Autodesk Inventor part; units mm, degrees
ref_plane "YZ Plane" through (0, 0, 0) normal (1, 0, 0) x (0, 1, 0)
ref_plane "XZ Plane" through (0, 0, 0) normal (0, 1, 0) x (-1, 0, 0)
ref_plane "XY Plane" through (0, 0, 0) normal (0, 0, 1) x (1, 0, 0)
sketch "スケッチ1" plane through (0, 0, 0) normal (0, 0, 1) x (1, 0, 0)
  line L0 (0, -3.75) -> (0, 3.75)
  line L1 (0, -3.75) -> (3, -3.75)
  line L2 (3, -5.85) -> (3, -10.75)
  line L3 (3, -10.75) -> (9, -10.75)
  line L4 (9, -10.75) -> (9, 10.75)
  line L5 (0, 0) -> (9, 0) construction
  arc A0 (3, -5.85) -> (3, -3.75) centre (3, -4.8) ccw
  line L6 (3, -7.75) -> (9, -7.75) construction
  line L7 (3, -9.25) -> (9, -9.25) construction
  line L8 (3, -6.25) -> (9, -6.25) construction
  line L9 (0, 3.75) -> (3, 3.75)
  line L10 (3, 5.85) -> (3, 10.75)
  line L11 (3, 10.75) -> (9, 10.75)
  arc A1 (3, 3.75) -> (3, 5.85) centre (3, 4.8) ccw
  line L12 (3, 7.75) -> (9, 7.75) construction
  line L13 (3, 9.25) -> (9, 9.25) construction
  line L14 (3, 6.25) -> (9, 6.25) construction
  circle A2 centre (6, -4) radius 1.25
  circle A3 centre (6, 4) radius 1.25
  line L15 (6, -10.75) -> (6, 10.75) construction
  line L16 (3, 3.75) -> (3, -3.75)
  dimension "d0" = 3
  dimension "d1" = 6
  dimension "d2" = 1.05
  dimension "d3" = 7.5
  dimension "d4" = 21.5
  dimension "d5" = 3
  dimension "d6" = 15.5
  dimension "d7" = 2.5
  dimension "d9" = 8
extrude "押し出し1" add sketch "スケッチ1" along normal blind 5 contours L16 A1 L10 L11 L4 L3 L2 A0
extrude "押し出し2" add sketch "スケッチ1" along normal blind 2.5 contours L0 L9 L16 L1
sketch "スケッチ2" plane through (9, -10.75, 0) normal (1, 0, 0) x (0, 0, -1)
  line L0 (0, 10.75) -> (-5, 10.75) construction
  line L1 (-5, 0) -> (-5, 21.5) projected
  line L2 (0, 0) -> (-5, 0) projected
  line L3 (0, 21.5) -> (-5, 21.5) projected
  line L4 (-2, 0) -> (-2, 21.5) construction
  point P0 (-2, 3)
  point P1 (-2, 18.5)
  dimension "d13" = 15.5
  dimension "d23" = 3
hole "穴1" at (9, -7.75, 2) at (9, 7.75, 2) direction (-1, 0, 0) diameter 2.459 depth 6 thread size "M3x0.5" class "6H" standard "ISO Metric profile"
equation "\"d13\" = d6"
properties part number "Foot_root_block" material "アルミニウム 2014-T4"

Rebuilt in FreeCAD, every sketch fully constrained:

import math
import FreeCAD as App
import Part
import Sketcher
from FreeCAD import Vector

doc = App.newDocument("Part")
params = doc.addObject("Spreadsheet::Sheet", "Params")
for row, (alias, value) in enumerate([
    ("sketch1_diameter", "2.5 mm"),
    ("sketch1_width", "6 mm"),
    ("sketch1_radius", "1.05 mm"),
    ("sketch1_height", "7.5 mm"),
    ("sketch1_height2", "21.5 mm"),
    ("pad1_length", "5 mm"),
    ("sketch2_width", "3 mm"),
    ("sketch2_height", "7.5 mm"),
    ("pad2_length", "2.5 mm"),
    ("hole_diameter", "2.459 mm"),
    ("hole_depth", "6 mm"),
], start=1):
    params.set(f"A{row}", alias)
    params.set(f"B{row}", "=" + value)
    params.setAlias(f"B{row}", alias)

body = doc.addObject("PartDesign::Body", "Body")

sketch1 = body.newObject("Sketcher::SketchObject", "Sketch")
sketch1.AttachmentSupport = (doc.getObject("XY_Plane"), [""])
sketch1.MapMode = "FlatFace"
sketch1.addGeometry([
    Part.LineSegment(Vector(3, 3.8, 0), Vector(3, -3.8, 0)),
    Part.ArcOfCircle(Part.Circle(Vector(3, -4.8, 0), Vector(0, 0, 1), 1), math.radians(-90), math.radians(90)),
    Part.LineSegment(Vector(3, -5.8, 0), Vector(3, -10.8, 0)),
    Part.LineSegment(Vector(3, -10.8, 0), Vector(9, -10.8, 0)),
    Part.LineSegment(Vector(9, -10.8, 0), Vector(9, 10.8, 0)),
    Part.LineSegment(Vector(9, 10.8, 0), Vector(3, 10.8, 0)),
    Part.LineSegment(Vector(3, 10.8, 0), Vector(3, 5.8, 0)),
    Part.ArcOfCircle(Part.Circle(Vector(3, 4.8, 0), Vector(0, 0, 1), 1), math.radians(-90), math.radians(90)),
    Part.Circle(Vector(6, -4, 0), Vector(0, 0, 1), 1.2),
    Part.Circle(Vector(6, 4, 0), Vector(0, 0, 1), 1.2),
], False)
sketch1.addConstraint([
    Sketcher.Constraint("Coincident", 0, 2, 1, 2),
    Sketcher.Constraint("Coincident", 1, 1, 2, 1),
    Sketcher.Constraint("Coincident", 2, 2, 3, 1),
    Sketcher.Constraint("Coincident", 3, 2, 4, 1),
    Sketcher.Constraint("Coincident", 4, 2, 5, 1),
    Sketcher.Constraint("Coincident", 5, 2, 6, 1),
    Sketcher.Constraint("Coincident", 6, 2, 7, 2),
    Sketcher.Constraint("Coincident", 7, 1, 0, 1),
    Sketcher.Constraint("Vertical", 0),
    Sketcher.Constraint("Vertical", 2),
    Sketcher.Constraint("Horizontal", 3),
    Sketcher.Constraint("Vertical", 4),
    Sketcher.Constraint("Horizontal", 5),
    Sketcher.Constraint("Vertical", 6),
    Sketcher.Constraint("Equal", 1, 7),
    Sketcher.Constraint("Equal", 8, 9),
    Sketcher.Constraint("Symmetric", 1, 3, 7, 3, -1),
    Sketcher.Constraint("Symmetric", 8, 3, 9, 3, -1),
    Sketcher.Constraint("Symmetric", 2, 2, 5, 2, -1),
    Sketcher.Constraint("Vertical", 7, 3, 0, 2),
    Sketcher.Constraint("Vertical", 0, 2, 1, 1),
    Sketcher.Constraint("Diameter", 8, 2.5),
    Sketcher.Constraint("DistanceX", 3, 1, 3, 2, 6.0),
    Sketcher.Constraint("Radius", 1, 1.05),
    Sketcher.Constraint("DistanceY", 0, 2, 0, 1, 7.5),
    Sketcher.Constraint("DistanceY", 4, 1, 4, 2, 21.5),
    Sketcher.Constraint("DistanceX", -1, 1, 1, 3, 3.0),
    Sketcher.Constraint("DistanceX", -1, 1, 8, 3, 6.0),
    Sketcher.Constraint("DistanceY", 8, 3, 9, 3, 8.0),
])
sketch1.setExpression("Constraints[21]", "Params.sketch1_diameter")
sketch1.setExpression("Constraints[22]", "Params.sketch1_width")
sketch1.setExpression("Constraints[23]", "Params.sketch1_radius")
sketch1.setExpression("Constraints[24]", "Params.sketch1_height")
sketch1.setExpression("Constraints[25]", "Params.sketch1_height2")
pad1 = body.newObject("PartDesign::Pad", "Pad")
pad1.Profile = sketch1
pad1.setExpression("Length", "Params.pad1_length")

sketch2 = body.newObject("Sketcher::SketchObject", "Sketch001")
sketch2.AttachmentSupport = (doc.getObject("XY_Plane"), [""])
sketch2.MapMode = "FlatFace"
sketch2.addGeometry([
    Part.LineSegment(Vector(0, 3.8, 0), Vector(0, -3.8, 0)),
    Part.LineSegment(Vector(0, -3.8, 0), Vector(3, -3.8, 0)),
    Part.LineSegment(Vector(3, -3.8, 0), Vector(3, 3.8, 0)),
    Part.LineSegment(Vector(3, 3.8, 0), Vector(0, 3.8, 0)),
], False)
sketch2.addConstraint([
    Sketcher.Constraint("Coincident", 0, 2, 1, 1),
    Sketcher.Constraint("Coincident", 1, 2, 2, 1),
    Sketcher.Constraint("Coincident", 2, 2, 3, 1),
    Sketcher.Constraint("Coincident", 3, 2, 0, 1),
    Sketcher.Constraint("Vertical", 0),
    Sketcher.Constraint("Horizontal", 1),
    Sketcher.Constraint("Vertical", 2),
    Sketcher.Constraint("Horizontal", 3),
    Sketcher.Constraint("Symmetric", 0, 2, 3, 2, -1, 1),
    Sketcher.Constraint("DistanceX", 1, 1, 1, 2, 3.0),
    Sketcher.Constraint("DistanceY", 0, 2, 0, 1, 7.5),
])
sketch2.setExpression("Constraints[9]", "Params.sketch2_width")
sketch2.setExpression("Constraints[10]", "Params.sketch2_height")
pad2 = body.newObject("PartDesign::Pad", "Pad001")
pad2.Profile = sketch2
pad2.setExpression("Length", "Params.pad2_length")

sketch3 = body.newObject("Sketcher::SketchObject", "Sketch002")
sketch3.AttachmentSupport = (doc.getObject("YZ_Plane"), [""])
sketch3.MapMode = "FlatFace"
sketch3.AttachmentOffset = App.Placement(Vector(0, 0, 9), App.Rotation())
sketch3.addGeometry([
    Part.Circle(Vector(-7.8, 2, 0), Vector(0, 0, 1), 1.2),
    Part.Circle(Vector(7.8, 2, 0), Vector(0, 0, 1), 1.2),
], False)
sketch3.addConstraint([
    Sketcher.Constraint("Equal", 0, 1),
    Sketcher.Constraint("Symmetric", 0, 3, 1, 3, -2),
    Sketcher.Constraint("Diameter", 0, 2.459),
    Sketcher.Constraint("DistanceY", -1, 1, 0, 3, 2.0),
    Sketcher.Constraint("DistanceX", 0, 3, 1, 3, 15.5),
])
doc.recompute()
hole = body.newObject("PartDesign::Hole", "Hole")
hole.Profile = sketch3
hole.ThreadType = "None"
hole.setExpression("Diameter", "Params.hole_diameter")
hole.DepthType = "Dimension"
hole.setExpression("Depth", "Params.hole_depth")
hole.DrillPoint = "Flat"

doc.recompute()
